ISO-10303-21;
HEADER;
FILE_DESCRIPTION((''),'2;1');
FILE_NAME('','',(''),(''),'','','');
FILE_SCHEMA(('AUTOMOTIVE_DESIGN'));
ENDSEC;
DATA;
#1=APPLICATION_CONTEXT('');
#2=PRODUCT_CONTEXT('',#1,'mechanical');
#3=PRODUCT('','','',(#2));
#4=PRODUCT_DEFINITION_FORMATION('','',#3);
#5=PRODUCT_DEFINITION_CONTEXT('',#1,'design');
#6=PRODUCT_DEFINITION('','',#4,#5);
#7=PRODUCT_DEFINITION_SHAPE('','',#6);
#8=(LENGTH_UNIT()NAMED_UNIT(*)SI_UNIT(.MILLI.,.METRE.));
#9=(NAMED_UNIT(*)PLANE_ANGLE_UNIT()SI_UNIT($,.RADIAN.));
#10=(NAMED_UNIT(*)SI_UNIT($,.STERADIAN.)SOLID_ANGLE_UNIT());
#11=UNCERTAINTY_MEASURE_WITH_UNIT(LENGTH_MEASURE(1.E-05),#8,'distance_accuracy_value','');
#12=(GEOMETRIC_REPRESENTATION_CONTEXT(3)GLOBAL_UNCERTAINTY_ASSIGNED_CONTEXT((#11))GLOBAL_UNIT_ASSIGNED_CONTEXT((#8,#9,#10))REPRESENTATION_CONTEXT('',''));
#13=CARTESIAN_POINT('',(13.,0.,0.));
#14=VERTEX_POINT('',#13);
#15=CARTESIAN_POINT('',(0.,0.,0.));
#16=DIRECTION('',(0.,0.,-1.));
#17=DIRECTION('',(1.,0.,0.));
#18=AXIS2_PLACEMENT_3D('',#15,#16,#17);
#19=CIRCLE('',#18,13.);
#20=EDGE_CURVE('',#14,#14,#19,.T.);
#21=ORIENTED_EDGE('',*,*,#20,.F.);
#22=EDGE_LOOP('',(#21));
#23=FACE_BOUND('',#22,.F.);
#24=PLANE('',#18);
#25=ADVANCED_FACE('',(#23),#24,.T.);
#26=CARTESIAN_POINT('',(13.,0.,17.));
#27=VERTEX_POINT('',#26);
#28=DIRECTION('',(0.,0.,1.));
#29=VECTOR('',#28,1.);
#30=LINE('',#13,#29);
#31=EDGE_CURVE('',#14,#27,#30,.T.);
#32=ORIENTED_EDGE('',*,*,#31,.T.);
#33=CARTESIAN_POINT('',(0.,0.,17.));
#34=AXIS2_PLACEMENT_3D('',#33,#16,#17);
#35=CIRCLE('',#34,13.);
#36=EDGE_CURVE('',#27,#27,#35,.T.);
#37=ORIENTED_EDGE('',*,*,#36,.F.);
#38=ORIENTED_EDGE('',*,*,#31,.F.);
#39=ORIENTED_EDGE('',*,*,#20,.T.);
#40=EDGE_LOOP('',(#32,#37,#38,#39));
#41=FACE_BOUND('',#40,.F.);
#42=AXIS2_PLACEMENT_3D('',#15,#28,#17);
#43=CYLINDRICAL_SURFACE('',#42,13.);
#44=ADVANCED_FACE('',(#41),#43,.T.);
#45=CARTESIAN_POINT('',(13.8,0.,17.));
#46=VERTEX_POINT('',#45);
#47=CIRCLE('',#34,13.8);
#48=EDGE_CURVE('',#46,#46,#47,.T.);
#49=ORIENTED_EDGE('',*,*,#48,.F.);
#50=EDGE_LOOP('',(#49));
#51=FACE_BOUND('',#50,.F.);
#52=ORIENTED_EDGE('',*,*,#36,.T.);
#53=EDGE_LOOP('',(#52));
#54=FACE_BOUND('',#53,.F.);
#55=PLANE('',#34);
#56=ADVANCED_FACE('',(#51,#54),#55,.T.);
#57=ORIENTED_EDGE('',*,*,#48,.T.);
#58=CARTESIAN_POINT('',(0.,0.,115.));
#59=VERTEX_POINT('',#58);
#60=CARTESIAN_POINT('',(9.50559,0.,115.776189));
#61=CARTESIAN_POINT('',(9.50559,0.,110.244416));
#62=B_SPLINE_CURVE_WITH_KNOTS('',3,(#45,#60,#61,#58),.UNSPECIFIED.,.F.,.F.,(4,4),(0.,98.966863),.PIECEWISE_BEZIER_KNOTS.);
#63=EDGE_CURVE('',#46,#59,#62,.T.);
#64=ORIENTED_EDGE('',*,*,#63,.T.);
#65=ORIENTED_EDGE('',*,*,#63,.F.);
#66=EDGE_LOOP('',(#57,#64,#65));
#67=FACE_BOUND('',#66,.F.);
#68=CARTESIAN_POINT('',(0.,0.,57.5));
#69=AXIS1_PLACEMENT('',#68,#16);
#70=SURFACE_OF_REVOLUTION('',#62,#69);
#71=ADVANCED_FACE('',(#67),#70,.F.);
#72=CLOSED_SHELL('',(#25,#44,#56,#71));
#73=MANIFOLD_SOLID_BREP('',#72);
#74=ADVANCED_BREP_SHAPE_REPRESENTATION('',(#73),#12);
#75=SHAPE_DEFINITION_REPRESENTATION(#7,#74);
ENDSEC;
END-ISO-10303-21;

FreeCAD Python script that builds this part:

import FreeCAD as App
import Part
import Sketcher

doc = App.newDocument("Part")
body = doc.addObject("PartDesign::Body", "Body")

sketch1 = body.newObject("Sketcher::SketchObject", "Sketch")
sketch1.AttachmentSupport = (doc.getObject("XZ_Plane"), [""])
sketch1.MapMode = "FlatFace"
sketch1.addGeometry([
    Part.LineSegment(App.Vector(0, 115, 0), App.Vector(0, 0, 0)),
    Part.LineSegment(App.Vector(0, 0, 0), App.Vector(13, 0, 0)),
    Part.LineSegment(App.Vector(13, 0, 0), App.Vector(13, 17, 0)),
    Part.LineSegment(App.Vector(13, 17, 0), App.Vector(13.8, 17, 0)),
    Part.BSplineCurve([App.Vector(13.8, 17, 0), App.Vector(9.50559, 115.776189, 0), App.Vector(9.50559, 110.244416, 0), App.Vector(0, 115, 0)], [4, 4], [0, 98.966863], False, 3, [1, 1, 1, 1], False),
], False)
sketch1.addConstraint([
    Sketcher.Constraint("Block", 4),
    Sketcher.Constraint("Coincident", 0, 2, 1, 1),
    Sketcher.Constraint("Coincident", 1, 2, 2, 1),
    Sketcher.Constraint("Coincident", 2, 2, 3, 1),
    Sketcher.Constraint("Coincident", 3, 2, 4, 1),
    Sketcher.Constraint("Coincident", 4, 2, 0, 1),
    Sketcher.Constraint("Vertical", 0),
    Sketcher.Constraint("Horizontal", 1),
    Sketcher.Constraint("Vertical", 2),
    Sketcher.Constraint("Horizontal", 3),
    Sketcher.Constraint("PointOnObject", 1, 2, -1),
    Sketcher.Constraint("DistanceX", 1, 1, 1, 2, 13.0),
])
revolution = body.newObject("PartDesign::Revolution", "Revolution")
revolution.Profile = sketch1
revolution.ReferenceAxis = (sketch1, ["V_Axis"])
revolution.Angle = 360

doc.recompute()
